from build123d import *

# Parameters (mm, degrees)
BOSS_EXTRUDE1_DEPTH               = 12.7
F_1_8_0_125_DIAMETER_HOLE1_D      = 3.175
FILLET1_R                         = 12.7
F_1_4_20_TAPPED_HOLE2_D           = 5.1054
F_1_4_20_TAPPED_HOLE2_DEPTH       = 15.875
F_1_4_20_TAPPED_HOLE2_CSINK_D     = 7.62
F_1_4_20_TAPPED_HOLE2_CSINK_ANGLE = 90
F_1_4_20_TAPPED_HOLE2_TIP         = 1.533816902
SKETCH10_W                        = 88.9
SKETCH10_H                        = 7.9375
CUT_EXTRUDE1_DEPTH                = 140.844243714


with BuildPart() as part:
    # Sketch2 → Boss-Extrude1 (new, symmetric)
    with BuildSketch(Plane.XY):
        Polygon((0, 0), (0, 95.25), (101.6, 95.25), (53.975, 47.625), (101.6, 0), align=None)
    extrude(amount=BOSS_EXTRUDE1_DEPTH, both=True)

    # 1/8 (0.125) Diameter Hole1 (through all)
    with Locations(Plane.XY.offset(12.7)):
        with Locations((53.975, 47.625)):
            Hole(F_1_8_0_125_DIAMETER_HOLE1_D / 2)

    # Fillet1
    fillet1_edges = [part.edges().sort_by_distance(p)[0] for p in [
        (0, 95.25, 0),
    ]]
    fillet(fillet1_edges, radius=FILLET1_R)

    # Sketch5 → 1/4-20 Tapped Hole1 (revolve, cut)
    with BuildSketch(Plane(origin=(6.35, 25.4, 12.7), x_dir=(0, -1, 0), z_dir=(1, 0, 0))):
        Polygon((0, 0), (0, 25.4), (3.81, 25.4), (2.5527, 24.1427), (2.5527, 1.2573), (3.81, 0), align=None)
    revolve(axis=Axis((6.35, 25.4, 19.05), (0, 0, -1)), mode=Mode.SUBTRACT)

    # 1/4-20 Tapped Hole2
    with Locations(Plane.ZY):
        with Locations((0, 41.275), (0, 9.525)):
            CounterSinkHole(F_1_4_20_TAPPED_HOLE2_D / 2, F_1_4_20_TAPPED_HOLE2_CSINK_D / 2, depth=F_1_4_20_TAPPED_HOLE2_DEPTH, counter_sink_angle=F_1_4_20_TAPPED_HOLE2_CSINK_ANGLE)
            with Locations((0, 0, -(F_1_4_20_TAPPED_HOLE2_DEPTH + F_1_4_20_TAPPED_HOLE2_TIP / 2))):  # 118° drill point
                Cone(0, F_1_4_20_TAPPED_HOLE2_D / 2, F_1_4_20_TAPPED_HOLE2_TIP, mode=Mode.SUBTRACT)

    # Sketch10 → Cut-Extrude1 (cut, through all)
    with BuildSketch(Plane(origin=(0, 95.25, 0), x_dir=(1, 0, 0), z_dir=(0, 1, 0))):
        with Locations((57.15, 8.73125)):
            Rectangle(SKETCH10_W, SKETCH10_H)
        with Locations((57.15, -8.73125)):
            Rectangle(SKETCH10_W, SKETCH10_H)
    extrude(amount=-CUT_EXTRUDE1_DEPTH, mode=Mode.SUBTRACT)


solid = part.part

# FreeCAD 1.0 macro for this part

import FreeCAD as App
import Part
import Sketcher

V = App.Vector
Q = App.Units.Quantity


def edges_at(feature, points):
    """Names of the edges that pass closest to the given points."""
    edges = feature.Shape.Edges
    near = lambda p: min(range(len(edges)), key=lambda i: edges[i].distToShape(Part.Vertex(*p))[0])
    return sorted({f"Edge{near(p) + 1}" for p in points})


def add_polygon(sketch, points):
    """Adds a closed chain of lines whose ends are joined by coincident constraints."""
    first, n = sketch.GeometryCount, len(points)
    for a, b in zip(points, points[1:] + points[:1]):
        sketch.addGeometry(Part.LineSegment(App.Vector(*a, 0), App.Vector(*b, 0)), False)
    for i in range(n):
        sketch.addConstraint(Sketcher.Constraint("Coincident", first + i, 2, first + (i + 1) % n, 1))

doc = App.newDocument("Part")
body = doc.addObject("PartDesign::Body", "Body")

# Sketch on XY plane
sketch1 = doc.addObject("Sketcher::SketchObject", "Sketch")
body.addObject(sketch1)
sketch1.AttachmentSupport = (doc.XY_Plane, [""])
sketch1.MapMode = "FlatFace"
add_polygon(sketch1, [(0, 95.25), (0, 0), (101.6, 0), (53.975, 47.625), (101.6, 95.25)])  # lines 0-4
sketch1.addConstraint(Sketcher.Constraint("Vertical", 0))
sketch1.addConstraint(Sketcher.Constraint("Horizontal", 1))
sketch1.addConstraint(Sketcher.Constraint("Horizontal", 4))
sketch1.addConstraint(Sketcher.Constraint("Coincident", 0, 2, -1, 1))
sketch1.addConstraint(Sketcher.Constraint("Perpendicular", 2, 3))
sketch1.addConstraint(Sketcher.Constraint("Vertical", 1, 2, 3, 2))
sketch1.addConstraint(Sketcher.Constraint("Equal", 2, 3))
sketch1.addConstraint(Sketcher.Constraint("DistanceX", 1, 1, 1, 2, Q("4 in")))
sketch1.addConstraint(Sketcher.Constraint("DistanceY", 0, 2, 0, 1, Q("3.75 in")))
pad1 = doc.addObject("PartDesign::Pad", "Pad")
body.addObject(pad1)
pad1.Profile = sketch1
pad1.Length = Q("1 in")
pad1.Midplane = True

# Sketch on XY plane
sketch2 = doc.addObject("Sketcher::SketchObject", "Sketch001")
body.addObject(sketch2)
sketch2.AttachmentSupport = (doc.XY_Plane, [""])
sketch2.MapMode = "FlatFace"
sketch2.AttachmentOffset = App.Placement(V(0, 0, 0.5 * 25.4), App.Rotation())
sketch2.addGeometry(Part.Circle(V(53.975, 47.625, 0), V(0, 0, 1), 1.5875), False)
sketch2.addConstraint(Sketcher.Constraint("Diameter", 0, Q("0.125 in")))
sketch2.addConstraint(Sketcher.Constraint("DistanceX", -1, 1, 0, 3, Q("2.125 in")))
sketch2.addConstraint(Sketcher.Constraint("DistanceY", -1, 1, 0, 3, Q("1.875 in")))
doc.recompute()
hole = doc.addObject("PartDesign::Hole", "Hole")
body.addObject(hole)
hole.Profile = sketch2
hole.ThreadType = "None"
hole.Diameter = Q("0.125 in")
hole.DepthType = "ThroughAll"
doc.recompute()

fillet = doc.addObject("PartDesign::Fillet", "Fillet")
body.addObject(fillet)
fillet.Base = (hole, edges_at(hole, [(0, 95.25, 0)]))
fillet.Radius = Q("0.5 in")

# Sketch on YZ plane
sketch3 = doc.addObject("Sketcher::SketchObject", "Sketch002")
body.addObject(sketch3)
sketch3.AttachmentSupport = (doc.YZ_Plane, [""])
sketch3.MapMode = "FlatFace"
sketch3.AttachmentOffset = App.Placement(V(0, 0, 0.25 * 25.4), App.Rotation())
add_polygon(sketch3, [(25.4, -12.7), (25.4, 12.7), (21.59, 12.7), (22.8473, 11.4427), (22.8473, -11.4427), (21.59, -12.7)])  # lines 0-5
sketch3.addGeometry(Part.LineSegment(V(25.4, 12.7, 0), V(25.4, -12.7, 0)), True)  # axis
sketch3.addConstraint(Sketcher.Constraint("Vertical", 0))
sketch3.addConstraint(Sketcher.Constraint("Horizontal", 1))
sketch3.addConstraint(Sketcher.Constraint("Vertical", 3))
sketch3.addConstraint(Sketcher.Constraint("Horizontal", 5))
sketch3.addConstraint(Sketcher.Constraint("Vertical", 6))
sketch3.addConstraint(Sketcher.Constraint("Coincident", 6, 1, 0, 2))
sketch3.addConstraint(Sketcher.Constraint("Symmetric", 1, 2, 4, 2, -1))
sketch3.addConstraint(Sketcher.Constraint("Perpendicular", 2, 4))
sketch3.addConstraint(Sketcher.Constraint("Horizontal", 4, 2, 6, 2))
sketch3.addConstraint(Sketcher.Constraint("Equal", 2, 4))
sketch3.addConstraint(Sketcher.Constraint("DistanceY", 0, 1, 0, 2, Q("1 in")))
sketch3.addConstraint(Sketcher.Constraint("DistanceX", -1, 1, 0, 2, Q("1 in")))
sketch3.addConstraint(Sketcher.Constraint("DistanceX", 1, 2, 1, 1, Q("0.15 in")))
sketch3.addConstraint(Sketcher.Constraint("DistanceY", 3, 2, 3, 1, Q("0.901 in")))
groove = doc.addObject("PartDesign::Groove", "Groove")
body.addObject(groove)
groove.Profile = sketch3
groove.ReferenceAxis = (sketch3, ["Axis0"])
groove.Angle = 360

# Sketch on YZ plane
sketch4 = doc.addObject("Sketcher::SketchObject", "Sketch003")
body.addObject(sketch4)
sketch4.AttachmentSupport = (doc.YZ_Plane, [""])
sketch4.MapMode = "FlatFace"
sketch4.addGeometry(Part.Circle(V(41.275, 0, 0), V(0, 0, 1), 2.5527), False)
sketch4.addGeometry(Part.Circle(V(9.525, 0, 0), V(0, 0, 1), 2.5527), False)
sketch4.addConstraint(Sketcher.Constraint("Equal", 0, 1))
sketch4.addConstraint(Sketcher.Constraint("PointOnObject", 0, 3, -1))
sketch4.addConstraint(Sketcher.Constraint("PointOnObject", 1, 3, -1))
sketch4.addConstraint(Sketcher.Constraint("Diameter", 0, Q("0.201 in")))
sketch4.addConstraint(Sketcher.Constraint("DistanceX", 1, 3, 0, 3, Q("1.25 in")))
sketch4.addConstraint(Sketcher.Constraint("DistanceX", -1, 1, 0, 3, Q("1.625 in")))
doc.recompute()
hole2 = doc.addObject("PartDesign::Hole", "Hole001")
body.addObject(hole2)
hole2.Profile = sketch4
hole2.ThreadType = "None"
hole2.Diameter = Q("0.201 in")
hole2.DepthType = "Dimension"
hole2.Depth = Q("0.625 in")
hole2.DrillPoint = "Angled"
hole2.DrillPointAngle = 118
hole2.HoleCutType = "Countersink"
hole2.HoleCutDiameter = Q("0.3 in")
hole2.HoleCutCountersinkAngle = 90
hole2.Reversed = True

# Sketch on XZ plane
sketch5 = doc.addObject("Sketcher::SketchObject", "Sketch004")
body.addObject(sketch5)
sketch5.AttachmentSupport = (doc.XZ_Plane, [""])
sketch5.MapMode = "FlatFace"
sketch5.AttachmentOffset = App.Placement(V(0, 0, -3.75 * 25.4), App.Rotation())
add_polygon(sketch5, [(12.7, -12.7), (12.7, -4.7625), (101.6, -4.7625), (101.6, -12.7)])  # lines 0-3
add_polygon(sketch5, [(12.7, 4.7625), (12.7, 12.7), (101.6, 12.7), (101.6, 4.7625)])  # lines 4-7
sketch5.addConstraint(Sketcher.Constraint("Vertical", 0))
sketch5.addConstraint(Sketcher.Constraint("Horizontal", 1))
sketch5.addConstraint(Sketcher.Constraint("Vertical", 2))
sketch5.addConstraint(Sketcher.Constraint("Horizontal", 3))
sketch5.addConstraint(Sketcher.Constraint("Vertical", 4))
sketch5.addConstraint(Sketcher.Constraint("Horizontal", 5))
sketch5.addConstraint(Sketcher.Constraint("Vertical", 6))
sketch5.addConstraint(Sketcher.Constraint("Horizontal", 7))
sketch5.addConstraint(Sketcher.Constraint("Symmetric", 3, 2, 4, 2, -1))
sketch5.addConstraint(Sketcher.Constraint("Symmetric", 1, 2, 6, 2, -1))
sketch5.addConstraint(Sketcher.Constraint("DistanceX", 1, 1, 1, 2, Q("3.5 in")))
sketch5.addConstraint(Sketcher.Constraint("DistanceX", -1, 1, 1, 2, Q("4 in")))
sketch5.addConstraint(Sketcher.Constraint("DistanceY", 3, 2, 4, 2, Q("1 in")))
sketch5.addConstraint(Sketcher.Constraint("DistanceY", 0, 1, 0, 2, Q("0.3125 in")))
pocket1 = doc.addObject("PartDesign::Pocket", "Pocket")
body.addObject(pocket1)
pocket1.Profile = sketch5
pocket1.Type = "ThroughAll"
pocket1.Reversed = True

doc.recompute()
